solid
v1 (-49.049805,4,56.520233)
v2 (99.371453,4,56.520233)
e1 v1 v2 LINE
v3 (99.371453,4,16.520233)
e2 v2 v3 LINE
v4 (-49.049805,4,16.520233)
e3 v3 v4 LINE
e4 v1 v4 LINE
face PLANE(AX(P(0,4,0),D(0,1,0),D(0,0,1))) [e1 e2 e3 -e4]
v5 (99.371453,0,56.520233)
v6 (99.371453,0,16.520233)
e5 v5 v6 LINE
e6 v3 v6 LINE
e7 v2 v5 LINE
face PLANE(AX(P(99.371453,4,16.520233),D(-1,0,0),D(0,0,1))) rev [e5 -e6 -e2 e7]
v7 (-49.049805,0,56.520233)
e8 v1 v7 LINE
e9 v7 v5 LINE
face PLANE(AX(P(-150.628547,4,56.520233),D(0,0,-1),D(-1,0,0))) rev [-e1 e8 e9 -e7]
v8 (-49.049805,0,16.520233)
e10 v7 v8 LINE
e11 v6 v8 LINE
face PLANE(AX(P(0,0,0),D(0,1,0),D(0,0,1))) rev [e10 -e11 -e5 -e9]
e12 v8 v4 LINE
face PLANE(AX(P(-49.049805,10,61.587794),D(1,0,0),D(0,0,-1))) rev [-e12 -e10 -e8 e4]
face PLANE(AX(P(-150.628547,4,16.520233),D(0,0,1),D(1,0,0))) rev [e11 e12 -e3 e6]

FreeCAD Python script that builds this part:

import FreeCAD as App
import Part
import Sketcher
from FreeCAD import Vector
Q = App.Units.Quantity


def add_polygon(sketch, points):
    """Adds a closed chain of lines whose ends are joined by coincident constraints."""
    first, n = sketch.GeometryCount, len(points)
    for a, b in zip(points, points[1:] + points[:1]):
        sketch.addGeometry(Part.LineSegment(App.Vector(*a, 0), App.Vector(*b, 0)), False)
    for i in range(n):
        sketch.addConstraint(Sketcher.Constraint("Coincident", first + i, 2, first + (i + 1) % n, 1))

doc = App.newDocument("Part")
body = doc.addObject("PartDesign::Body", "Body")

sketch1 = body.newObject("Sketcher::SketchObject", "Sketch")
sketch1.AttachmentSupport = (doc.getObject("XZ_Plane"), [""])
sketch1.MapMode = "FlatFace"
add_polygon(sketch1, [(-150.628547, 16.520233), (-150.628547, 56.520233), (99.371453, 56.520233), (99.371453, 16.520233)])
sketch1.addConstraint([
    Sketcher.Constraint("Vertical", 0),
    Sketcher.Constraint("Horizontal", 1),
    Sketcher.Constraint("Vertical", 2),
    Sketcher.Constraint("Horizontal", 3),
    Sketcher.Constraint("DistanceX", 1, 1, 1, 2, Q("250 mm")),
    Sketcher.Constraint("DistanceY", 0, 1, 0, 2, Q("40 mm")),
    Sketcher.Constraint("DistanceX", 0, 2, -1, 1, Q("150.628547 mm")),
    Sketcher.Constraint("DistanceY", -1, 1, 0, 2, Q("56.520233 mm")),
])
pad1 = body.newObject("PartDesign::Pad", "Pad")
pad1.Profile = sketch1
pad1.Length = 4
pad1.Reversed = True

sketch2 = body.newObject("Sketcher::SketchObject", "Sketch001")
sketch2.AttachmentSupport = (doc.getObject("XZ_Plane"), [""])
sketch2.MapMode = "FlatFace"
add_polygon(sketch2, [(-175.997748, 61.587794), (-175.997748, 8.329717), (-49.049805, 8.329717), (-49.049805, 61.587794)])
sketch2.addConstraint([
    Sketcher.Constraint("Vertical", 0),
    Sketcher.Constraint("Horizontal", 1),
    Sketcher.Constraint("Vertical", 2),
    Sketcher.Constraint("Horizontal", 3),
    Sketcher.Constraint("DistanceX", 1, 1, 1, 2, Q("126.947943 mm")),
    Sketcher.Constraint("DistanceY", 0, 2, 0, 1, Q("53.258077 mm")),
    Sketcher.Constraint("DistanceX", 0, 2, -1, 1, Q("175.997748 mm")),
    Sketcher.Constraint("DistanceY", -1, 1, 0, 2, Q("8.329717 mm")),
])
pocket1 = body.newObject("PartDesign::Pocket", "Pocket")
pocket1.Profile = sketch2
pocket1.Length = 10

doc.recompute()
